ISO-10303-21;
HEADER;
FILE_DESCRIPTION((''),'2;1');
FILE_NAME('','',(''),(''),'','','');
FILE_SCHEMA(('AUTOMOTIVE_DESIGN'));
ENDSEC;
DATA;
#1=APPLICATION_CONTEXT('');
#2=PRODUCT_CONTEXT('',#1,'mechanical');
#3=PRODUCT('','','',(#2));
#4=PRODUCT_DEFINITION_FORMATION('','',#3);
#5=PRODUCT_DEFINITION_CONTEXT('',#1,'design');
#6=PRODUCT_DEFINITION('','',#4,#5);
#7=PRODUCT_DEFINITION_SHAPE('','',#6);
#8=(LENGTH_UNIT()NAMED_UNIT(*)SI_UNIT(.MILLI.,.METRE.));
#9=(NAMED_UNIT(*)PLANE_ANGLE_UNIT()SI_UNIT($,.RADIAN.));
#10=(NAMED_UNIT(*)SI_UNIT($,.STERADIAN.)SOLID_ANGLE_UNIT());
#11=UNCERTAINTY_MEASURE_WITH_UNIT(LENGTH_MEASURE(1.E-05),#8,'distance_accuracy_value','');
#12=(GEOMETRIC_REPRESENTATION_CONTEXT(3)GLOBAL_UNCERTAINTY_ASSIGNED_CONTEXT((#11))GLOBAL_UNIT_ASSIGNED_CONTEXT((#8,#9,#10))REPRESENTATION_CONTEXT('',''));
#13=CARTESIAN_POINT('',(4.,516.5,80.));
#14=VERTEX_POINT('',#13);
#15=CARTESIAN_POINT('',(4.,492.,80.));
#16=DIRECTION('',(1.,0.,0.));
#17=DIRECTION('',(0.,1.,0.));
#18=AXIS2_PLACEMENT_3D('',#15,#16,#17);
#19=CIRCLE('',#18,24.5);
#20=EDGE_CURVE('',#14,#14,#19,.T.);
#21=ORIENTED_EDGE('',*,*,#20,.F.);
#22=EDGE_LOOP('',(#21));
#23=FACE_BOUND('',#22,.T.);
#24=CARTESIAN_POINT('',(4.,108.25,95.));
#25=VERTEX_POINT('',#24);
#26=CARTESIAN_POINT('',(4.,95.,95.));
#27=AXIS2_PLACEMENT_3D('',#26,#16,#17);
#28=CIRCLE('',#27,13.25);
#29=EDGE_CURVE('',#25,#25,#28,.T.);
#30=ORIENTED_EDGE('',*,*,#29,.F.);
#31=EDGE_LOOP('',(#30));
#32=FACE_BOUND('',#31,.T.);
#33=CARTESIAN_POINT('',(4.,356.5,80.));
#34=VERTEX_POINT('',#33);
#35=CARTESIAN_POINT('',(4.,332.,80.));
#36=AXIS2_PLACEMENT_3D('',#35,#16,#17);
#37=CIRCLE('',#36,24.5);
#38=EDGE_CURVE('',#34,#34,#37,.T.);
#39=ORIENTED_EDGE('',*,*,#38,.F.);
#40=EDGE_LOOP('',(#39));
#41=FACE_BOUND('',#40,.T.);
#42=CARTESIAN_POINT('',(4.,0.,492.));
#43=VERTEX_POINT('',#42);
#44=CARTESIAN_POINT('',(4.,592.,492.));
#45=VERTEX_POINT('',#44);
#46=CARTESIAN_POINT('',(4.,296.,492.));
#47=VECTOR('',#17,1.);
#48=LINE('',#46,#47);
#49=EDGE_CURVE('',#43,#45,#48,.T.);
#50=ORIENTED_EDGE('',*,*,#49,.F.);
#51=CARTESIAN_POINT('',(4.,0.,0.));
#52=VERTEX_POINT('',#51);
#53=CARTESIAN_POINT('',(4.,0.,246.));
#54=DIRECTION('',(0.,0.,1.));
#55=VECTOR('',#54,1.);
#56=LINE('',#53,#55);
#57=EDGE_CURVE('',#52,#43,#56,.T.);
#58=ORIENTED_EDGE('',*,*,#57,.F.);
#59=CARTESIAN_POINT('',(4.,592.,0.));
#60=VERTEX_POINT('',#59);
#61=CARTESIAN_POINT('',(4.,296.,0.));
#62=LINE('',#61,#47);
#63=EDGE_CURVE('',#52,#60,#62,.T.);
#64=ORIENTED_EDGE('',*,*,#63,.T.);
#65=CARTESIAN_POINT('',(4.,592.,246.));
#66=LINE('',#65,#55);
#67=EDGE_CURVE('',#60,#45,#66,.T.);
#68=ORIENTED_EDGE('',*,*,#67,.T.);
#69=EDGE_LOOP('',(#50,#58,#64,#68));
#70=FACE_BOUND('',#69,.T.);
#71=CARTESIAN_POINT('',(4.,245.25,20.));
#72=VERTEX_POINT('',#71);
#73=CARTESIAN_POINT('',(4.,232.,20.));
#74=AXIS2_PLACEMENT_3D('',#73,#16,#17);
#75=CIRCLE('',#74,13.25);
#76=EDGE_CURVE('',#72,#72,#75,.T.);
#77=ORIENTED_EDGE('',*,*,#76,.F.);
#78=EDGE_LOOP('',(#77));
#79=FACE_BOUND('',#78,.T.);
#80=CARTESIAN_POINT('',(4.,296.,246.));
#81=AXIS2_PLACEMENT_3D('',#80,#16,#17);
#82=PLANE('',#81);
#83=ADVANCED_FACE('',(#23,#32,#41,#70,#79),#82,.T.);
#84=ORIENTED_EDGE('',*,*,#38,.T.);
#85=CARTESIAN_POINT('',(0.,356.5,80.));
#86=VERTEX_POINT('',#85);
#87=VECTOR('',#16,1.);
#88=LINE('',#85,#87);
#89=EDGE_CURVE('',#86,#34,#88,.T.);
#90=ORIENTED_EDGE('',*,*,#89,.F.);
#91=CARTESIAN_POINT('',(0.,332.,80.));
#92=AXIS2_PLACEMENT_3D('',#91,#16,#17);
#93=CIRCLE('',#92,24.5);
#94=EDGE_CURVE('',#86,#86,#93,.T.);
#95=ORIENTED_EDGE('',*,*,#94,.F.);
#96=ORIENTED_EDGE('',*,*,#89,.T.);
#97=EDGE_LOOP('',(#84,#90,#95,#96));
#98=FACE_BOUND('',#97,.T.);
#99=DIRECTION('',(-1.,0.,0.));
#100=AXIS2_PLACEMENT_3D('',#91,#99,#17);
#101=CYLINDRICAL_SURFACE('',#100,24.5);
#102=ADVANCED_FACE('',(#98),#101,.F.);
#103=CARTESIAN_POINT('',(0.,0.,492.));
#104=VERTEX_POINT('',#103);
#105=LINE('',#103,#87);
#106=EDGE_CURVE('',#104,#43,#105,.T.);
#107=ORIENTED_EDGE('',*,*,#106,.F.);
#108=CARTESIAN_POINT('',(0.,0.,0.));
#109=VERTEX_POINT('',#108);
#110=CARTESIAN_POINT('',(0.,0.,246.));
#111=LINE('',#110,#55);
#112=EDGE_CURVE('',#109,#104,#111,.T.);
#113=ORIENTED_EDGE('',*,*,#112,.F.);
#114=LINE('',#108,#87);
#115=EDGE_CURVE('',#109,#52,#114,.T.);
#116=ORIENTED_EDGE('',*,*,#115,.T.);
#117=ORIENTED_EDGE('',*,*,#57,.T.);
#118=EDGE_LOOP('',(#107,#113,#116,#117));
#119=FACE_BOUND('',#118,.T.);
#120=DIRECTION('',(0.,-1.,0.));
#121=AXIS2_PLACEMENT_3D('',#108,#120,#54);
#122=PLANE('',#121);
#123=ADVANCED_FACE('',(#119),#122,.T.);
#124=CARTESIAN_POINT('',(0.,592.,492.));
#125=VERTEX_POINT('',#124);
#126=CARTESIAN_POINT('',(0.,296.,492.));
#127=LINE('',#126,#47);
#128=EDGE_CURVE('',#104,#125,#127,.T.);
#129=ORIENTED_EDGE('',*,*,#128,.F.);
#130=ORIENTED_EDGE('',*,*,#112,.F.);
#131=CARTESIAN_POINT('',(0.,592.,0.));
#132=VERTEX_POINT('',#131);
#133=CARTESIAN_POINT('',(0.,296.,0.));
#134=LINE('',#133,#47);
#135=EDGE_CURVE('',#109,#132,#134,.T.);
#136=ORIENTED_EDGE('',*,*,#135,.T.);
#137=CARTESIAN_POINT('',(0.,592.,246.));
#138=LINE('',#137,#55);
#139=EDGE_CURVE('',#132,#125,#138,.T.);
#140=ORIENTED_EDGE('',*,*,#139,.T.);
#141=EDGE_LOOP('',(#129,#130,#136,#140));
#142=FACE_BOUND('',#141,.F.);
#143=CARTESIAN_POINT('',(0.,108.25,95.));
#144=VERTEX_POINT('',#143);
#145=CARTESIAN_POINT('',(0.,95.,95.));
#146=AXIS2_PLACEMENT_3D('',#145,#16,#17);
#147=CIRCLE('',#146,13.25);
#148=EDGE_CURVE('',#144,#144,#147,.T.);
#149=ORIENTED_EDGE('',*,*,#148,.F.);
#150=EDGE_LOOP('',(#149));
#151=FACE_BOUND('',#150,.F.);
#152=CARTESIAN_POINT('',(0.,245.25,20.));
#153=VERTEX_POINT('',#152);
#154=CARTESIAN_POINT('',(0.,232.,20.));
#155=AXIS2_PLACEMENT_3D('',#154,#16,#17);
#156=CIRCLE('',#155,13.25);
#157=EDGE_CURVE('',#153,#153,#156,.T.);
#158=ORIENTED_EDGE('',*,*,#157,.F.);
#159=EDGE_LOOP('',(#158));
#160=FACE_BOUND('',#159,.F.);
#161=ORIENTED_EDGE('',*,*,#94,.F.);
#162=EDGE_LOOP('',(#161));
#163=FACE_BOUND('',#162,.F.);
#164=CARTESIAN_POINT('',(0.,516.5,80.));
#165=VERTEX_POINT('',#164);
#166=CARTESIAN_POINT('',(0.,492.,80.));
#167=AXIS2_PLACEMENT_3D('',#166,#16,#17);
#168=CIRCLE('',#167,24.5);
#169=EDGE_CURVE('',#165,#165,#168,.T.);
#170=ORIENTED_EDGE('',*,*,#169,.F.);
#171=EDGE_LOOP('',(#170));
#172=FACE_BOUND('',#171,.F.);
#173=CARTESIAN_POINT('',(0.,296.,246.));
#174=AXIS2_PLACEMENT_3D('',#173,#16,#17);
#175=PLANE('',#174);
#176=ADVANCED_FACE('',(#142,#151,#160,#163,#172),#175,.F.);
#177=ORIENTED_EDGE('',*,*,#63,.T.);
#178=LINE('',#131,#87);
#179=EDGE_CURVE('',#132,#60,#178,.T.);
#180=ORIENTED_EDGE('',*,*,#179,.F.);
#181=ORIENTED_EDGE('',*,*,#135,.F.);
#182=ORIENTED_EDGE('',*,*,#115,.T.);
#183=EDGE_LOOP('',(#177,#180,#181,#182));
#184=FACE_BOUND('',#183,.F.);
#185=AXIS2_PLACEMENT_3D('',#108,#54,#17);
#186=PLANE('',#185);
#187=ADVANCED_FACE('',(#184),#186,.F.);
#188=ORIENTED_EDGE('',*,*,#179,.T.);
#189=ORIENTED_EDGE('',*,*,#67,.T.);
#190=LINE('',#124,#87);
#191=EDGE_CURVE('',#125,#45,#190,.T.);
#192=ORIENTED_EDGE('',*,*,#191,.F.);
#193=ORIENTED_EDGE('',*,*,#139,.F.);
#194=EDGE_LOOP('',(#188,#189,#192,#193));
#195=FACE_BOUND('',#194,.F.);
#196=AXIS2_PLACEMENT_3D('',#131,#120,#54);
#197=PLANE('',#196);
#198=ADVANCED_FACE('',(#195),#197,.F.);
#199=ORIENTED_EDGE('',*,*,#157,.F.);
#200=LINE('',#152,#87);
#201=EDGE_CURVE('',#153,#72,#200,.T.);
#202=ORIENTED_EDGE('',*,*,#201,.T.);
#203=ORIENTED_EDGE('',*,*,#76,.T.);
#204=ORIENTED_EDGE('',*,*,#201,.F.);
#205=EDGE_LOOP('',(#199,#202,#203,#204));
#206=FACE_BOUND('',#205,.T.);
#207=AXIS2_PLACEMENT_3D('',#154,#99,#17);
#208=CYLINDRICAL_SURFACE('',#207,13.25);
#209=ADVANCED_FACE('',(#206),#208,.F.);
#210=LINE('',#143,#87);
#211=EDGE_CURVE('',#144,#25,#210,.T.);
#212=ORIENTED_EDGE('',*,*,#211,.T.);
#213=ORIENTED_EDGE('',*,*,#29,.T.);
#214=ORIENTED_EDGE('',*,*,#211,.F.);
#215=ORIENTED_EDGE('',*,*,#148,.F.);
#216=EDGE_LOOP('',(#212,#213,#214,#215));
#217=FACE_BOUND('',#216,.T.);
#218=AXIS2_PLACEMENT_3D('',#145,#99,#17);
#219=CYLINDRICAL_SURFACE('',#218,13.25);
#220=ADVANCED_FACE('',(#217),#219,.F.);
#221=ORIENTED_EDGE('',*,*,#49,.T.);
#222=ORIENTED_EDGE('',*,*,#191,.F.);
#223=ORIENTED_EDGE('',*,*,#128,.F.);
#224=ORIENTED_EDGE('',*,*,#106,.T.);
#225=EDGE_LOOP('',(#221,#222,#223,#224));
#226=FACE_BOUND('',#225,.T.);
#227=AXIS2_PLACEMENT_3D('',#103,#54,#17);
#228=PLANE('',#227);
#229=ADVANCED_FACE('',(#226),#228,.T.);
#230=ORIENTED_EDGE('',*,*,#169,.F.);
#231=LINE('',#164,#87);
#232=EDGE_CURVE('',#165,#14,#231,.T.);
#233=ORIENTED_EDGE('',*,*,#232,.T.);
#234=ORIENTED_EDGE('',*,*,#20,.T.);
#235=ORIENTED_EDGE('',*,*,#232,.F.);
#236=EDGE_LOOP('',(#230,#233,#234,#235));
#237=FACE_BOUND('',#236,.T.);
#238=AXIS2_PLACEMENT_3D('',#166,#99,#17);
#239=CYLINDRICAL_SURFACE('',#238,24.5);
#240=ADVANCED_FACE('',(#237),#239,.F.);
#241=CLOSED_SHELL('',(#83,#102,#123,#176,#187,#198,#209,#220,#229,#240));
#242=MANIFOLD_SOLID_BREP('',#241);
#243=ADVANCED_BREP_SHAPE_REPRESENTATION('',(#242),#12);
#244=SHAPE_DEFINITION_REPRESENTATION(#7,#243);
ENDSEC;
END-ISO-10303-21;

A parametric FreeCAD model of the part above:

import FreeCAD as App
import Part
import Sketcher
from FreeCAD import Vector
Q = App.Units.Quantity


def add_polygon(sketch, points):
    """Adds a closed chain of lines whose ends are joined by coincident constraints."""
    first, n = sketch.GeometryCount, len(points)
    for a, b in zip(points, points[1:] + points[:1]):
        sketch.addGeometry(Part.LineSegment(App.Vector(*a, 0), App.Vector(*b, 0)), False)
    for i in range(n):
        sketch.addConstraint(Sketcher.Constraint("Coincident", first + i, 2, first + (i + 1) % n, 1))

doc = App.newDocument("Part")
body = doc.addObject("PartDesign::Body", "Body")

# Sketch on YZ plane
sketch1 = body.newObject("Sketcher::SketchObject", "Sketch")
sketch1.AttachmentSupport = (doc.getObject("YZ_Plane"), [""])
sketch1.MapMode = "FlatFace"
add_polygon(sketch1, [(0, 492), (0, 0), (592, 0), (592, 492)])  # lines 0-3
sketch1.addGeometry(Part.Circle(Vector(232, 20, 0), Vector(0, 0, 1), 13), False)  # 4
sketch1.addGeometry(Part.Circle(Vector(95, 95, 0), Vector(0, 0, 1), 13), False)  # 5
sketch1.addGeometry(Part.Circle(Vector(332, 80, 0), Vector(0, 0, 1), 24), False)  # 6
sketch1.addGeometry(Part.Circle(Vector(492, 80, 0), Vector(0, 0, 1), 24), False)  # 7
sketch1.addConstraint([
    Sketcher.Constraint("Vertical", 0),
    Sketcher.Constraint("Horizontal", 1),
    Sketcher.Constraint("Vertical", 2),
    Sketcher.Constraint("Horizontal", 3),
    Sketcher.Constraint("Coincident", 0, 2, -1, 1),
    Sketcher.Constraint("Equal", 4, 5),
    Sketcher.Constraint("Equal", 6, 7),
    Sketcher.Constraint("Horizontal", 6, 3, 7, 3),
    Sketcher.Constraint("Diameter", 6, Q("49 mm")),
    Sketcher.Constraint("Diameter", 4, Q("26.5 mm")),
    Sketcher.Constraint("DistanceX", 1, 1, 1, 2, Q("592 mm")),
    Sketcher.Constraint("DistanceY", 0, 2, 0, 1, Q("492 mm")),
    Sketcher.Constraint("DistanceX", -1, 1, 4, 3, Q("232 mm")),
    Sketcher.Constraint("DistanceY", -1, 1, 4, 3, Q("20 mm")),
    Sketcher.Constraint("DistanceX", -1, 1, 5, 3, Q("95 mm")),
    Sketcher.Constraint("DistanceY", -1, 1, 5, 3, Q("95 mm")),
    Sketcher.Constraint("DistanceX", -1, 1, 6, 3, Q("332 mm")),
    Sketcher.Constraint("DistanceY", -1, 1, 6, 3, Q("80 mm")),
    Sketcher.Constraint("DistanceX", -1, 1, 7, 3, Q("492 mm")),
])
pad1 = body.newObject("PartDesign::Pad", "Pad")
pad1.Profile = sketch1
pad1.Length = 4

doc.recompute()
